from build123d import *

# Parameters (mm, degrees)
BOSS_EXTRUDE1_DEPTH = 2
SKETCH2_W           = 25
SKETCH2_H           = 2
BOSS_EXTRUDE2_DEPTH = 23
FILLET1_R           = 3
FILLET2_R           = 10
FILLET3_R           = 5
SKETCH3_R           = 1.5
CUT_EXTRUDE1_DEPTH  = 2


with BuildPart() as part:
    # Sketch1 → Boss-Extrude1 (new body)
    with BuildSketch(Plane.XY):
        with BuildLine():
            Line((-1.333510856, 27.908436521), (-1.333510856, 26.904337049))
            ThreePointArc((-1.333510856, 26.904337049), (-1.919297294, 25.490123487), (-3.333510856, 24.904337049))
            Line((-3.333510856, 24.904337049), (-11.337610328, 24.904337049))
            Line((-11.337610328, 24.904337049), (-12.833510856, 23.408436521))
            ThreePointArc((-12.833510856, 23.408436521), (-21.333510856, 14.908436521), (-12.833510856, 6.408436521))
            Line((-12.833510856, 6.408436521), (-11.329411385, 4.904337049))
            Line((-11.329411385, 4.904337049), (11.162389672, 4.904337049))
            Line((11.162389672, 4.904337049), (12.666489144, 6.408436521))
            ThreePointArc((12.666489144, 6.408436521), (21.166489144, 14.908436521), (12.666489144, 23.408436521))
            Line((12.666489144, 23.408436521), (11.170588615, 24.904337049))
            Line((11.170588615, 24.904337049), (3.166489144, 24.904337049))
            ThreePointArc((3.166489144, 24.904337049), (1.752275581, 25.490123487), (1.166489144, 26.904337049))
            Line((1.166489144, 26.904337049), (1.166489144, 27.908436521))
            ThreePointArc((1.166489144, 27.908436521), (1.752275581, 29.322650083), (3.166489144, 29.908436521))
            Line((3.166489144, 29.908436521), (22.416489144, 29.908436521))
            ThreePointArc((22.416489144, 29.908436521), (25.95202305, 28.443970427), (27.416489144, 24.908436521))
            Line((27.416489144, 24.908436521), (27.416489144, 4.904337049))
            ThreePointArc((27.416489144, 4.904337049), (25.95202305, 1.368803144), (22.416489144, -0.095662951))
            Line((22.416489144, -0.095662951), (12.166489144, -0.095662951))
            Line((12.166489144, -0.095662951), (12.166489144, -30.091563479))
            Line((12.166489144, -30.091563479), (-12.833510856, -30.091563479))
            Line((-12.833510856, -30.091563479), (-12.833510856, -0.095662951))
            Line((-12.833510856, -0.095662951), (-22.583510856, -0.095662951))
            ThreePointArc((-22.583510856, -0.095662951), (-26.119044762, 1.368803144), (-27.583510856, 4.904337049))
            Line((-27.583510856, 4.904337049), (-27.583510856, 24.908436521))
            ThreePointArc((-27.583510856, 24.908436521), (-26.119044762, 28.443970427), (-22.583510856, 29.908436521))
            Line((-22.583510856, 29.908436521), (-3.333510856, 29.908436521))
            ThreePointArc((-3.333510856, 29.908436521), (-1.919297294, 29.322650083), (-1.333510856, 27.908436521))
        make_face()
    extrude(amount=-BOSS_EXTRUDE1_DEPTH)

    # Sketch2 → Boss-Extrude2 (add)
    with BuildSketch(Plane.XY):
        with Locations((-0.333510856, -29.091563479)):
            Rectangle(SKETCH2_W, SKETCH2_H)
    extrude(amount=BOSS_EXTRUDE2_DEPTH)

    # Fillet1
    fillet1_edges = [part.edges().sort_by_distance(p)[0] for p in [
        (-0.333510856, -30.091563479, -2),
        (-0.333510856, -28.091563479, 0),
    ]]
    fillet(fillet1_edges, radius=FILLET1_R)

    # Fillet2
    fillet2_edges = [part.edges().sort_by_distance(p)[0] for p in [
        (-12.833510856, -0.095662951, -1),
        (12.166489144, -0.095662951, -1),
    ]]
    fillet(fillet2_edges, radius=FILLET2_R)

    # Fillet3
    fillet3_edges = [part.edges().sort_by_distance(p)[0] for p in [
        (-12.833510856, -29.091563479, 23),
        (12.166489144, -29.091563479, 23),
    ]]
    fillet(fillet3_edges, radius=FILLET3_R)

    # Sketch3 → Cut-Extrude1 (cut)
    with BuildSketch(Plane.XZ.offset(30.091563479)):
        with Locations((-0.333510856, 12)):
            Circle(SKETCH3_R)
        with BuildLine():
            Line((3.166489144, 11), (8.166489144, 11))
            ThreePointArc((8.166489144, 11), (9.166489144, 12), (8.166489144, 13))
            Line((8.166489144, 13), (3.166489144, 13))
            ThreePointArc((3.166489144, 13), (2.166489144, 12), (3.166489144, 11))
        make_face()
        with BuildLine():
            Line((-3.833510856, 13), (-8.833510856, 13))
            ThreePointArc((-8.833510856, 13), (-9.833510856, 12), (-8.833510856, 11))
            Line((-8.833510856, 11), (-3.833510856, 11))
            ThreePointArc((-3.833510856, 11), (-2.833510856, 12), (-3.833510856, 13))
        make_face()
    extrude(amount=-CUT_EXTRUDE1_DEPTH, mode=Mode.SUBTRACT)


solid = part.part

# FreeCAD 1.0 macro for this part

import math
import FreeCAD as App
import Part
import Sketcher
from FreeCAD import Vector
Q = App.Units.Quantity


def edges_at(feature, points):
    """Names of the edges that pass closest to the given points."""
    edges = feature.Shape.Edges
    near = lambda p: min(range(len(edges)), key=lambda i: edges[i].distToShape(Part.Vertex(*p))[0])
    return sorted({f"Edge{near(p) + 1}" for p in points})


def add_polygon(sketch, points):
    """Adds a closed chain of lines whose ends are joined by coincident constraints."""
    first, n = sketch.GeometryCount, len(points)
    for a, b in zip(points, points[1:] + points[:1]):
        sketch.addGeometry(Part.LineSegment(App.Vector(*a, 0), App.Vector(*b, 0)), False)
    for i in range(n):
        sketch.addConstraint(Sketcher.Constraint("Coincident", first + i, 2, first + (i + 1) % n, 1))

doc = App.newDocument("Part")
params = doc.addObject("Spreadsheet::Sheet", "Params")
for row, (alias, value) in enumerate([
    ("sketch1_radius", "2 mm"),
    ("sketch1_radius2", "5 mm"),
    ("sketch1_radius3", "8.5 mm"),
    ("sketch1_width", "25 mm"),
    ("sketch1_width2", "19.25 mm"),
    ("pad1_length", "2 mm"),
    ("sketch2_width", "25 mm"),
    ("sketch2_height", "2 mm"),
    ("pad2_length", "23 mm"),
    ("fillet_radius", "3 mm"),
    ("fillet2_radius", "10 mm"),
    ("fillet3_radius", "5 mm"),
    ("sketch3_diameter", "3 mm"),
    ("sketch3_radius", "1 mm"),
    ("sketch3_width", "5 mm"),
    ("pocket1_length", "2 mm"),
], start=1):
    params.set(f"A{row}", alias)
    params.set(f"B{row}", "=" + value)
    params.setAlias(f"B{row}", alias)

body = doc.addObject("PartDesign::Body", "Body")

# Sketch on XY plane
sketch1 = body.newObject("Sketcher::SketchObject", "Sketch")
sketch1.AttachmentSupport = (doc.getObject("XY_Plane"), [""])
sketch1.MapMode = "FlatFace"
sketch1.addGeometry([
    Part.LineSegment(Vector(-1.333511, 26.904337, 0), Vector(-1.333511, 27.908437, 0)),  # 0
    Part.ArcOfCircle(Part.Circle(Vector(-3.333511, 27.908437, 0), Vector(0, 0, 1), 2), math.radians(0), math.radians(90)),  # 1
    Part.LineSegment(Vector(-3.333511, 29.908437, 0), Vector(-22.583511, 29.908437, 0)),  # 2
    Part.ArcOfCircle(Part.Circle(Vector(-22.583511, 24.908437, 0), Vector(0, 0, 1), 5), math.radians(90), math.radians(180)),  # 3
    Part.LineSegment(Vector(-27.583511, 24.908437, 0), Vector(-27.583511, 4.904337, 0)),  # 4
    Part.ArcOfCircle(Part.Circle(Vector(-22.583511, 4.904337, 0), Vector(0, 0, 1), 5), math.radians(-180), math.radians(-90)),  # 5
    Part.LineSegment(Vector(-22.583511, -0.095663, 0), Vector(-12.833511, -0.095663, 0)),  # 6
    Part.LineSegment(Vector(-12.833511, -0.095663, 0), Vector(-12.833511, -30.091563, 0)),  # 7
    Part.LineSegment(Vector(-12.833511, -30.091563, 0), Vector(12.166489, -30.091563, 0)),  # 8
    Part.LineSegment(Vector(12.166489, -30.091563, 0), Vector(12.166489, -0.095663, 0)),  # 9
    Part.LineSegment(Vector(12.166489, -0.095663, 0), Vector(22.416489, -0.095663, 0)),  # 10
    Part.ArcOfCircle(Part.Circle(Vector(22.416489, 4.904337, 0), Vector(0, 0, 1), 5), math.radians(-90), math.radians(0)),  # 11
    Part.LineSegment(Vector(27.416489, 4.904337, 0), Vector(27.416489, 24.908437, 0)),  # 12
    Part.ArcOfCircle(Part.Circle(Vector(22.416489, 24.908437, 0), Vector(0, 0, 1), 5), math.radians(0), math.radians(90)),  # 13
    Part.LineSegment(Vector(22.416489, 29.908437, 0), Vector(3.166489, 29.908437, 0)),  # 14
    Part.ArcOfCircle(Part.Circle(Vector(3.166489, 27.908437, 0), Vector(0, 0, 1), 2), math.radians(90), math.radians(180)),  # 15
    Part.LineSegment(Vector(1.166489, 27.908437, 0), Vector(1.166489, 26.904337, 0)),  # 16
    Part.ArcOfCircle(Part.Circle(Vector(3.166489, 26.904337, 0), Vector(0, 0, 1), 2), math.radians(180), math.radians(270)),  # 17
    Part.LineSegment(Vector(3.166489, 24.904337, 0), Vector(11.170589, 24.904337, 0)),  # 18
    Part.LineSegment(Vector(11.170589, 24.904337, 0), Vector(12.666489, 23.408437, 0)),  # 19
    Part.ArcOfCircle(Part.Circle(Vector(12.666489, 14.908437, 0), Vector(0, 0, 1), 8.5), math.radians(-90), math.radians(90)),  # 20
    Part.LineSegment(Vector(12.666489, 6.408437, 0), Vector(11.16239, 4.904337, 0)),  # 21
    Part.LineSegment(Vector(11.16239, 4.904337, 0), Vector(-11.329411, 4.904337, 0)),  # 22
    Part.LineSegment(Vector(-11.329411, 4.904337, 0), Vector(-12.833511, 6.408437, 0)),  # 23
    Part.ArcOfCircle(Part.Circle(Vector(-12.833511, 14.908437, 0), Vector(0, 0, 1), 8.5), math.radians(90), math.radians(270)),  # 24
    Part.LineSegment(Vector(-12.833511, 23.408437, 0), Vector(-11.33761, 24.904337, 0)),  # 25
    Part.LineSegment(Vector(-11.33761, 24.904337, 0), Vector(-3.333511, 24.904337, 0)),  # 26
    Part.ArcOfCircle(Part.Circle(Vector(-3.333511, 26.904337, 0), Vector(0, 0, 1), 2), math.radians(-90), math.radians(0)),  # 27
], False)
sketch1.addConstraint([
    Sketcher.Constraint("Tangent", 0, 2, 1, 1),
    Sketcher.Constraint("Tangent", 1, 2, 2, 1),
    Sketcher.Constraint("Tangent", 2, 2, 3, 1),
    Sketcher.Constraint("Tangent", 3, 2, 4, 1),
    Sketcher.Constraint("Tangent", 4, 2, 5, 1),
    Sketcher.Constraint("Tangent", 5, 2, 6, 1),
    Sketcher.Constraint("Coincident", 6, 2, 7, 1),
    Sketcher.Constraint("Coincident", 7, 2, 8, 1),
    Sketcher.Constraint("Coincident", 8, 2, 9, 1),
    Sketcher.Constraint("Coincident", 9, 2, 10, 1),
    Sketcher.Constraint("Tangent", 10, 2, 11, 1),
    Sketcher.Constraint("Tangent", 11, 2, 12, 1),
    Sketcher.Constraint("Tangent", 12, 2, 13, 1),
    Sketcher.Constraint("Tangent", 13, 2, 14, 1),
    Sketcher.Constraint("Tangent", 14, 2, 15, 1),
    Sketcher.Constraint("Tangent", 15, 2, 16, 1),
    Sketcher.Constraint("Tangent", 16, 2, 17, 1),
    Sketcher.Constraint("Tangent", 17, 2, 18, 1),
    Sketcher.Constraint("Coincident", 18, 2, 19, 1),
    Sketcher.Constraint("Coincident", 19, 2, 20, 2),
    Sketcher.Constraint("Coincident", 20, 1, 21, 1),
    Sketcher.Constraint("Coincident", 21, 2, 22, 1),
    Sketcher.Constraint("Coincident", 22, 2, 23, 1),
    Sketcher.Constraint("Coincident", 23, 2, 24, 2),
    Sketcher.Constraint("Coincident", 24, 1, 25, 1),
    Sketcher.Constraint("Coincident", 25, 2, 26, 1),
    Sketcher.Constraint("Tangent", 26, 2, 27, 1),
    Sketcher.Constraint("Tangent", 27, 2, 0, 1),
    Sketcher.Constraint("Vertical", 0),
    Sketcher.Constraint("Horizontal", 2),
    Sketcher.Constraint("Vertical", 4),
    Sketcher.Constraint("Horizontal", 6),
    Sketcher.Constraint("Vertical", 7),
    Sketcher.Constraint("Horizontal", 8),
    Sketcher.Constraint("Vertical", 9),
    Sketcher.Constraint("Horizontal", 10),
    Sketcher.Constraint("Vertical", 12),
    Sketcher.Constraint("Horizontal", 14),
    Sketcher.Constraint("Vertical", 16),
    Sketcher.Constraint("Horizontal", 18),
    Sketcher.Constraint("Horizontal", 22),
    Sketcher.Constraint("Horizontal", 26),
    Sketcher.Constraint("Equal", 3, 5),
    Sketcher.Constraint("Equal", 5, 11),
    Sketcher.Constraint("Equal", 11, 13),
    Sketcher.Constraint("Equal", 1, 15),
    Sketcher.Constraint("Equal", 15, 17),
    Sketcher.Constraint("Equal", 20, 24),
    Sketcher.Constraint("Equal", 17, 27),
    Sketcher.Constraint("Perpendicular", 19, 21),
    Sketcher.Constraint("Perpendicular", 21, 23),
    Sketcher.Constraint("Perpendicular", 23, 25),
    Sketcher.Constraint("Horizontal", 5, 3, 11, 3),
    Sketcher.Constraint("Horizontal", 3, 3, 13, 3),
    Sketcher.Constraint("Horizontal", 20, 3, 24, 3),
    Sketcher.Constraint("Horizontal", 17, 3, 27, 3),
    Sketcher.Constraint("Horizontal", 11, 2, 21, 2),
    Sketcher.Constraint("Vertical", 24, 3, 6, 2),
    Sketcher.Constraint("Vertical", 20, 3, 19, 2),
    Sketcher.Constraint("Vertical", 19, 2, 20, 1),
    Sketcher.Constraint("Vertical", 7, 2, 23, 2),
    Sketcher.Constraint("Vertical", 23, 2, 24, 1),
    Sketcher.Constraint("Equal", 2, 14),
    Sketcher.Constraint("Equal", 18, 26),
    Sketcher.Constraint("Equal", 21, 23),
    Sketcher.Constraint("Radius", 1, Q("2 mm")),
    Sketcher.Constraint("Radius", 3, Q("5 mm")),
    Sketcher.Constraint("Radius", 20, Q("8.5 mm")),
    Sketcher.Constraint("DistanceX", 8, 1, 8, 2, Q("25 mm")),
    Sketcher.Constraint("DistanceX", 5, 3, 11, 3, Q("45 mm")),
    Sketcher.Constraint("DistanceY", 11, 3, 17, 3, Q("22 mm")),
    Sketcher.Constraint("DistanceY", 20, 3, 13, 3, Q("10 mm")),
    Sketcher.Constraint("DistanceX", 1, 3, 20, 3, Q("16 mm")),
    Sketcher.Constraint("DistanceY", 7, 2, 24, 3, Q("45 mm")),
    Sketcher.Constraint("DistanceX", 2, 2, 2, 1, Q("19.25 mm")),
    Sketcher.Constraint("DistanceX", 18, 1, 18, 2, Q("8.004099 mm")),
    Sketcher.Constraint("DistanceX", 1, 3, -1, 1, Q("3.333511 mm")),
    Sketcher.Constraint("DistanceY", -1, 1, 1, 3, Q("27.908437 mm")),
])
sketch1.setExpression("Constraints[65]", "Params.sketch1_radius")
sketch1.setExpression("Constraints[66]", "Params.sketch1_radius2")
sketch1.setExpression("Constraints[67]", "Params.sketch1_radius3")
sketch1.setExpression("Constraints[68]", "Params.sketch1_width")
sketch1.setExpression("Constraints[74]", "Params.sketch1_width2")
pad1 = body.newObject("PartDesign::Pad", "Pad")
pad1.Profile = sketch1
pad1.setExpression("Length", "Params.pad1_length")
pad1.Reversed = True

# Sketch on XY plane
sketch2 = body.newObject("Sketcher::SketchObject", "Sketch001")
sketch2.AttachmentSupport = (doc.getObject("XY_Plane"), [""])
sketch2.MapMode = "FlatFace"
add_polygon(sketch2, [(-12.833511, -28.091563), (-12.833511, -30.091563), (12.166489, -30.091563), (12.166489, -28.091563)])  # lines 0-3
sketch2.addConstraint([
    Sketcher.Constraint("Vertical", 0),
    Sketcher.Constraint("Horizontal", 1),
    Sketcher.Constraint("Vertical", 2),
    Sketcher.Constraint("Horizontal", 3),
    Sketcher.Constraint("DistanceX", 1, 1, 1, 2, Q("25 mm")),
    Sketcher.Constraint("DistanceY", 0, 2, 0, 1, Q("2 mm")),
    Sketcher.Constraint("DistanceX", 0, 2, -1, 1, Q("12.833511 mm")),
    Sketcher.Constraint("DistanceY", 0, 2, -1, 1, Q("30.091563 mm")),
])
sketch2.setExpression("Constraints[8]", "Params.sketch2_width")
sketch2.setExpression("Constraints[9]", "Params.sketch2_height")
pad2 = body.newObject("PartDesign::Pad", "Pad001")
pad2.Profile = sketch2
pad2.setExpression("Length", "Params.pad2_length")
doc.recompute()

fillet = body.newObject("PartDesign::Fillet", "Fillet")
fillet.Base = (pad2, edges_at(pad2, [(-0.334, -30.092, -2), (-0.334, -28.092, 0)]))
fillet.setExpression("Radius", "Params.fillet_radius")
doc.recompute()

fillet2 = body.newObject("PartDesign::Fillet", "Fillet001")
fillet2.Base = (fillet, edges_at(fillet, [(-12.834, -0.096, -1), (12.166, -0.096, -1)]))
fillet2.setExpression("Radius", "Params.fillet2_radius")
doc.recompute()

fillet3 = body.newObject("PartDesign::Fillet", "Fillet002")
fillet3.Base = (fillet2, edges_at(fillet2, [(-12.834, -29.092, 23), (12.166, -29.092, 23)]))
fillet3.setExpression("Radius", "Params.fillet3_radius")

# Sketch on XZ plane
sketch3 = body.newObject("Sketcher::SketchObject", "Sketch002")
sketch3.AttachmentSupport = (doc.getObject("XZ_Plane"), [""])
sketch3.MapMode = "FlatFace"
sketch3.AttachmentOffset = App.Placement(Vector(0, 0, 30.091563), App.Rotation())
sketch3.addGeometry([
    Part.Circle(Vector(-0.333511, 12, 0), Vector(0, 0, 1), 1.5),  # 0
    Part.LineSegment(Vector(3.166489, 11, 0), Vector(8.166489, 11, 0)),  # 1
    Part.ArcOfCircle(Part.Circle(Vector(8.166489, 12, 0), Vector(0, 0, 1), 1), math.radians(-90), math.radians(90)),  # 2
    Part.LineSegment(Vector(8.166489, 13, 0), Vector(3.166489, 13, 0)),  # 3
    Part.ArcOfCircle(Part.Circle(Vector(3.166489, 12, 0), Vector(0, 0, 1), 1), math.radians(90), math.radians(270)),  # 4
    Part.LineSegment(Vector(-3.833511, 13, 0), Vector(-8.833511, 13, 0)),  # 5
    Part.ArcOfCircle(Part.Circle(Vector(-8.833511, 12, 0), Vector(0, 0, 1), 1), math.radians(90), math.radians(270)),  # 6
    Part.LineSegment(Vector(-8.833511, 11, 0), Vector(-3.833511, 11, 0)),  # 7
    Part.ArcOfCircle(Part.Circle(Vector(-3.833511, 12, 0), Vector(0, 0, 1), 1), math.radians(-90), math.radians(90)),  # 8
], False)
sketch3.addConstraint([
    Sketcher.Constraint("Tangent", 1, 2, 2, 1),
    Sketcher.Constraint("Tangent", 2, 2, 3, 1),
    Sketcher.Constraint("Tangent", 3, 2, 4, 1),
    Sketcher.Constraint("Tangent", 4, 2, 1, 1),
    Sketcher.Constraint("Tangent", 5, 2, 6, 1),
    Sketcher.Constraint("Tangent", 6, 2, 7, 1),
    Sketcher.Constraint("Tangent", 7, 2, 8, 1),
    Sketcher.Constraint("Tangent", 8, 2, 5, 1),
    Sketcher.Constraint("Horizontal", 1),
    Sketcher.Constraint("Horizontal", 3),
    Sketcher.Constraint("Horizontal", 5),
    Sketcher.Constraint("Horizontal", 7),
    Sketcher.Constraint("Equal", 4, 6),
    Sketcher.Constraint("Horizontal", 0, 3, 2, 3),
    Sketcher.Constraint("Horizontal", 4, 3, 6, 3),
    Sketcher.Constraint("Equal", 3, 5),
    Sketcher.Constraint("Diameter", 0, Q("3 mm")),
    Sketcher.Constraint("Radius", 2, Q("1 mm")),
    Sketcher.Constraint("DistanceX", 1, 1, 1, 2, Q("5 mm")),
    Sketcher.Constraint("DistanceY", -1, 1, 0, 3, Q("12 mm")),
    Sketcher.Constraint("DistanceX", 6, 3, 4, 3, Q("12 mm")),
    Sketcher.Constraint("DistanceX", 0, 3, 2, 3, Q("8.5 mm")),
    Sketcher.Constraint("DistanceX", 0, 3, -1, 1, Q("0.333511 mm")),
])
sketch3.setExpression("Constraints[16]", "Params.sketch3_diameter")
sketch3.setExpression("Constraints[17]", "Params.sketch3_radius")
sketch3.setExpression("Constraints[18]", "Params.sketch3_width")
pocket1 = body.newObject("PartDesign::Pocket", "Pocket")
pocket1.Profile = sketch3
pocket1.setExpression("Length", "Params.pocket1_length")

doc.recompute()
